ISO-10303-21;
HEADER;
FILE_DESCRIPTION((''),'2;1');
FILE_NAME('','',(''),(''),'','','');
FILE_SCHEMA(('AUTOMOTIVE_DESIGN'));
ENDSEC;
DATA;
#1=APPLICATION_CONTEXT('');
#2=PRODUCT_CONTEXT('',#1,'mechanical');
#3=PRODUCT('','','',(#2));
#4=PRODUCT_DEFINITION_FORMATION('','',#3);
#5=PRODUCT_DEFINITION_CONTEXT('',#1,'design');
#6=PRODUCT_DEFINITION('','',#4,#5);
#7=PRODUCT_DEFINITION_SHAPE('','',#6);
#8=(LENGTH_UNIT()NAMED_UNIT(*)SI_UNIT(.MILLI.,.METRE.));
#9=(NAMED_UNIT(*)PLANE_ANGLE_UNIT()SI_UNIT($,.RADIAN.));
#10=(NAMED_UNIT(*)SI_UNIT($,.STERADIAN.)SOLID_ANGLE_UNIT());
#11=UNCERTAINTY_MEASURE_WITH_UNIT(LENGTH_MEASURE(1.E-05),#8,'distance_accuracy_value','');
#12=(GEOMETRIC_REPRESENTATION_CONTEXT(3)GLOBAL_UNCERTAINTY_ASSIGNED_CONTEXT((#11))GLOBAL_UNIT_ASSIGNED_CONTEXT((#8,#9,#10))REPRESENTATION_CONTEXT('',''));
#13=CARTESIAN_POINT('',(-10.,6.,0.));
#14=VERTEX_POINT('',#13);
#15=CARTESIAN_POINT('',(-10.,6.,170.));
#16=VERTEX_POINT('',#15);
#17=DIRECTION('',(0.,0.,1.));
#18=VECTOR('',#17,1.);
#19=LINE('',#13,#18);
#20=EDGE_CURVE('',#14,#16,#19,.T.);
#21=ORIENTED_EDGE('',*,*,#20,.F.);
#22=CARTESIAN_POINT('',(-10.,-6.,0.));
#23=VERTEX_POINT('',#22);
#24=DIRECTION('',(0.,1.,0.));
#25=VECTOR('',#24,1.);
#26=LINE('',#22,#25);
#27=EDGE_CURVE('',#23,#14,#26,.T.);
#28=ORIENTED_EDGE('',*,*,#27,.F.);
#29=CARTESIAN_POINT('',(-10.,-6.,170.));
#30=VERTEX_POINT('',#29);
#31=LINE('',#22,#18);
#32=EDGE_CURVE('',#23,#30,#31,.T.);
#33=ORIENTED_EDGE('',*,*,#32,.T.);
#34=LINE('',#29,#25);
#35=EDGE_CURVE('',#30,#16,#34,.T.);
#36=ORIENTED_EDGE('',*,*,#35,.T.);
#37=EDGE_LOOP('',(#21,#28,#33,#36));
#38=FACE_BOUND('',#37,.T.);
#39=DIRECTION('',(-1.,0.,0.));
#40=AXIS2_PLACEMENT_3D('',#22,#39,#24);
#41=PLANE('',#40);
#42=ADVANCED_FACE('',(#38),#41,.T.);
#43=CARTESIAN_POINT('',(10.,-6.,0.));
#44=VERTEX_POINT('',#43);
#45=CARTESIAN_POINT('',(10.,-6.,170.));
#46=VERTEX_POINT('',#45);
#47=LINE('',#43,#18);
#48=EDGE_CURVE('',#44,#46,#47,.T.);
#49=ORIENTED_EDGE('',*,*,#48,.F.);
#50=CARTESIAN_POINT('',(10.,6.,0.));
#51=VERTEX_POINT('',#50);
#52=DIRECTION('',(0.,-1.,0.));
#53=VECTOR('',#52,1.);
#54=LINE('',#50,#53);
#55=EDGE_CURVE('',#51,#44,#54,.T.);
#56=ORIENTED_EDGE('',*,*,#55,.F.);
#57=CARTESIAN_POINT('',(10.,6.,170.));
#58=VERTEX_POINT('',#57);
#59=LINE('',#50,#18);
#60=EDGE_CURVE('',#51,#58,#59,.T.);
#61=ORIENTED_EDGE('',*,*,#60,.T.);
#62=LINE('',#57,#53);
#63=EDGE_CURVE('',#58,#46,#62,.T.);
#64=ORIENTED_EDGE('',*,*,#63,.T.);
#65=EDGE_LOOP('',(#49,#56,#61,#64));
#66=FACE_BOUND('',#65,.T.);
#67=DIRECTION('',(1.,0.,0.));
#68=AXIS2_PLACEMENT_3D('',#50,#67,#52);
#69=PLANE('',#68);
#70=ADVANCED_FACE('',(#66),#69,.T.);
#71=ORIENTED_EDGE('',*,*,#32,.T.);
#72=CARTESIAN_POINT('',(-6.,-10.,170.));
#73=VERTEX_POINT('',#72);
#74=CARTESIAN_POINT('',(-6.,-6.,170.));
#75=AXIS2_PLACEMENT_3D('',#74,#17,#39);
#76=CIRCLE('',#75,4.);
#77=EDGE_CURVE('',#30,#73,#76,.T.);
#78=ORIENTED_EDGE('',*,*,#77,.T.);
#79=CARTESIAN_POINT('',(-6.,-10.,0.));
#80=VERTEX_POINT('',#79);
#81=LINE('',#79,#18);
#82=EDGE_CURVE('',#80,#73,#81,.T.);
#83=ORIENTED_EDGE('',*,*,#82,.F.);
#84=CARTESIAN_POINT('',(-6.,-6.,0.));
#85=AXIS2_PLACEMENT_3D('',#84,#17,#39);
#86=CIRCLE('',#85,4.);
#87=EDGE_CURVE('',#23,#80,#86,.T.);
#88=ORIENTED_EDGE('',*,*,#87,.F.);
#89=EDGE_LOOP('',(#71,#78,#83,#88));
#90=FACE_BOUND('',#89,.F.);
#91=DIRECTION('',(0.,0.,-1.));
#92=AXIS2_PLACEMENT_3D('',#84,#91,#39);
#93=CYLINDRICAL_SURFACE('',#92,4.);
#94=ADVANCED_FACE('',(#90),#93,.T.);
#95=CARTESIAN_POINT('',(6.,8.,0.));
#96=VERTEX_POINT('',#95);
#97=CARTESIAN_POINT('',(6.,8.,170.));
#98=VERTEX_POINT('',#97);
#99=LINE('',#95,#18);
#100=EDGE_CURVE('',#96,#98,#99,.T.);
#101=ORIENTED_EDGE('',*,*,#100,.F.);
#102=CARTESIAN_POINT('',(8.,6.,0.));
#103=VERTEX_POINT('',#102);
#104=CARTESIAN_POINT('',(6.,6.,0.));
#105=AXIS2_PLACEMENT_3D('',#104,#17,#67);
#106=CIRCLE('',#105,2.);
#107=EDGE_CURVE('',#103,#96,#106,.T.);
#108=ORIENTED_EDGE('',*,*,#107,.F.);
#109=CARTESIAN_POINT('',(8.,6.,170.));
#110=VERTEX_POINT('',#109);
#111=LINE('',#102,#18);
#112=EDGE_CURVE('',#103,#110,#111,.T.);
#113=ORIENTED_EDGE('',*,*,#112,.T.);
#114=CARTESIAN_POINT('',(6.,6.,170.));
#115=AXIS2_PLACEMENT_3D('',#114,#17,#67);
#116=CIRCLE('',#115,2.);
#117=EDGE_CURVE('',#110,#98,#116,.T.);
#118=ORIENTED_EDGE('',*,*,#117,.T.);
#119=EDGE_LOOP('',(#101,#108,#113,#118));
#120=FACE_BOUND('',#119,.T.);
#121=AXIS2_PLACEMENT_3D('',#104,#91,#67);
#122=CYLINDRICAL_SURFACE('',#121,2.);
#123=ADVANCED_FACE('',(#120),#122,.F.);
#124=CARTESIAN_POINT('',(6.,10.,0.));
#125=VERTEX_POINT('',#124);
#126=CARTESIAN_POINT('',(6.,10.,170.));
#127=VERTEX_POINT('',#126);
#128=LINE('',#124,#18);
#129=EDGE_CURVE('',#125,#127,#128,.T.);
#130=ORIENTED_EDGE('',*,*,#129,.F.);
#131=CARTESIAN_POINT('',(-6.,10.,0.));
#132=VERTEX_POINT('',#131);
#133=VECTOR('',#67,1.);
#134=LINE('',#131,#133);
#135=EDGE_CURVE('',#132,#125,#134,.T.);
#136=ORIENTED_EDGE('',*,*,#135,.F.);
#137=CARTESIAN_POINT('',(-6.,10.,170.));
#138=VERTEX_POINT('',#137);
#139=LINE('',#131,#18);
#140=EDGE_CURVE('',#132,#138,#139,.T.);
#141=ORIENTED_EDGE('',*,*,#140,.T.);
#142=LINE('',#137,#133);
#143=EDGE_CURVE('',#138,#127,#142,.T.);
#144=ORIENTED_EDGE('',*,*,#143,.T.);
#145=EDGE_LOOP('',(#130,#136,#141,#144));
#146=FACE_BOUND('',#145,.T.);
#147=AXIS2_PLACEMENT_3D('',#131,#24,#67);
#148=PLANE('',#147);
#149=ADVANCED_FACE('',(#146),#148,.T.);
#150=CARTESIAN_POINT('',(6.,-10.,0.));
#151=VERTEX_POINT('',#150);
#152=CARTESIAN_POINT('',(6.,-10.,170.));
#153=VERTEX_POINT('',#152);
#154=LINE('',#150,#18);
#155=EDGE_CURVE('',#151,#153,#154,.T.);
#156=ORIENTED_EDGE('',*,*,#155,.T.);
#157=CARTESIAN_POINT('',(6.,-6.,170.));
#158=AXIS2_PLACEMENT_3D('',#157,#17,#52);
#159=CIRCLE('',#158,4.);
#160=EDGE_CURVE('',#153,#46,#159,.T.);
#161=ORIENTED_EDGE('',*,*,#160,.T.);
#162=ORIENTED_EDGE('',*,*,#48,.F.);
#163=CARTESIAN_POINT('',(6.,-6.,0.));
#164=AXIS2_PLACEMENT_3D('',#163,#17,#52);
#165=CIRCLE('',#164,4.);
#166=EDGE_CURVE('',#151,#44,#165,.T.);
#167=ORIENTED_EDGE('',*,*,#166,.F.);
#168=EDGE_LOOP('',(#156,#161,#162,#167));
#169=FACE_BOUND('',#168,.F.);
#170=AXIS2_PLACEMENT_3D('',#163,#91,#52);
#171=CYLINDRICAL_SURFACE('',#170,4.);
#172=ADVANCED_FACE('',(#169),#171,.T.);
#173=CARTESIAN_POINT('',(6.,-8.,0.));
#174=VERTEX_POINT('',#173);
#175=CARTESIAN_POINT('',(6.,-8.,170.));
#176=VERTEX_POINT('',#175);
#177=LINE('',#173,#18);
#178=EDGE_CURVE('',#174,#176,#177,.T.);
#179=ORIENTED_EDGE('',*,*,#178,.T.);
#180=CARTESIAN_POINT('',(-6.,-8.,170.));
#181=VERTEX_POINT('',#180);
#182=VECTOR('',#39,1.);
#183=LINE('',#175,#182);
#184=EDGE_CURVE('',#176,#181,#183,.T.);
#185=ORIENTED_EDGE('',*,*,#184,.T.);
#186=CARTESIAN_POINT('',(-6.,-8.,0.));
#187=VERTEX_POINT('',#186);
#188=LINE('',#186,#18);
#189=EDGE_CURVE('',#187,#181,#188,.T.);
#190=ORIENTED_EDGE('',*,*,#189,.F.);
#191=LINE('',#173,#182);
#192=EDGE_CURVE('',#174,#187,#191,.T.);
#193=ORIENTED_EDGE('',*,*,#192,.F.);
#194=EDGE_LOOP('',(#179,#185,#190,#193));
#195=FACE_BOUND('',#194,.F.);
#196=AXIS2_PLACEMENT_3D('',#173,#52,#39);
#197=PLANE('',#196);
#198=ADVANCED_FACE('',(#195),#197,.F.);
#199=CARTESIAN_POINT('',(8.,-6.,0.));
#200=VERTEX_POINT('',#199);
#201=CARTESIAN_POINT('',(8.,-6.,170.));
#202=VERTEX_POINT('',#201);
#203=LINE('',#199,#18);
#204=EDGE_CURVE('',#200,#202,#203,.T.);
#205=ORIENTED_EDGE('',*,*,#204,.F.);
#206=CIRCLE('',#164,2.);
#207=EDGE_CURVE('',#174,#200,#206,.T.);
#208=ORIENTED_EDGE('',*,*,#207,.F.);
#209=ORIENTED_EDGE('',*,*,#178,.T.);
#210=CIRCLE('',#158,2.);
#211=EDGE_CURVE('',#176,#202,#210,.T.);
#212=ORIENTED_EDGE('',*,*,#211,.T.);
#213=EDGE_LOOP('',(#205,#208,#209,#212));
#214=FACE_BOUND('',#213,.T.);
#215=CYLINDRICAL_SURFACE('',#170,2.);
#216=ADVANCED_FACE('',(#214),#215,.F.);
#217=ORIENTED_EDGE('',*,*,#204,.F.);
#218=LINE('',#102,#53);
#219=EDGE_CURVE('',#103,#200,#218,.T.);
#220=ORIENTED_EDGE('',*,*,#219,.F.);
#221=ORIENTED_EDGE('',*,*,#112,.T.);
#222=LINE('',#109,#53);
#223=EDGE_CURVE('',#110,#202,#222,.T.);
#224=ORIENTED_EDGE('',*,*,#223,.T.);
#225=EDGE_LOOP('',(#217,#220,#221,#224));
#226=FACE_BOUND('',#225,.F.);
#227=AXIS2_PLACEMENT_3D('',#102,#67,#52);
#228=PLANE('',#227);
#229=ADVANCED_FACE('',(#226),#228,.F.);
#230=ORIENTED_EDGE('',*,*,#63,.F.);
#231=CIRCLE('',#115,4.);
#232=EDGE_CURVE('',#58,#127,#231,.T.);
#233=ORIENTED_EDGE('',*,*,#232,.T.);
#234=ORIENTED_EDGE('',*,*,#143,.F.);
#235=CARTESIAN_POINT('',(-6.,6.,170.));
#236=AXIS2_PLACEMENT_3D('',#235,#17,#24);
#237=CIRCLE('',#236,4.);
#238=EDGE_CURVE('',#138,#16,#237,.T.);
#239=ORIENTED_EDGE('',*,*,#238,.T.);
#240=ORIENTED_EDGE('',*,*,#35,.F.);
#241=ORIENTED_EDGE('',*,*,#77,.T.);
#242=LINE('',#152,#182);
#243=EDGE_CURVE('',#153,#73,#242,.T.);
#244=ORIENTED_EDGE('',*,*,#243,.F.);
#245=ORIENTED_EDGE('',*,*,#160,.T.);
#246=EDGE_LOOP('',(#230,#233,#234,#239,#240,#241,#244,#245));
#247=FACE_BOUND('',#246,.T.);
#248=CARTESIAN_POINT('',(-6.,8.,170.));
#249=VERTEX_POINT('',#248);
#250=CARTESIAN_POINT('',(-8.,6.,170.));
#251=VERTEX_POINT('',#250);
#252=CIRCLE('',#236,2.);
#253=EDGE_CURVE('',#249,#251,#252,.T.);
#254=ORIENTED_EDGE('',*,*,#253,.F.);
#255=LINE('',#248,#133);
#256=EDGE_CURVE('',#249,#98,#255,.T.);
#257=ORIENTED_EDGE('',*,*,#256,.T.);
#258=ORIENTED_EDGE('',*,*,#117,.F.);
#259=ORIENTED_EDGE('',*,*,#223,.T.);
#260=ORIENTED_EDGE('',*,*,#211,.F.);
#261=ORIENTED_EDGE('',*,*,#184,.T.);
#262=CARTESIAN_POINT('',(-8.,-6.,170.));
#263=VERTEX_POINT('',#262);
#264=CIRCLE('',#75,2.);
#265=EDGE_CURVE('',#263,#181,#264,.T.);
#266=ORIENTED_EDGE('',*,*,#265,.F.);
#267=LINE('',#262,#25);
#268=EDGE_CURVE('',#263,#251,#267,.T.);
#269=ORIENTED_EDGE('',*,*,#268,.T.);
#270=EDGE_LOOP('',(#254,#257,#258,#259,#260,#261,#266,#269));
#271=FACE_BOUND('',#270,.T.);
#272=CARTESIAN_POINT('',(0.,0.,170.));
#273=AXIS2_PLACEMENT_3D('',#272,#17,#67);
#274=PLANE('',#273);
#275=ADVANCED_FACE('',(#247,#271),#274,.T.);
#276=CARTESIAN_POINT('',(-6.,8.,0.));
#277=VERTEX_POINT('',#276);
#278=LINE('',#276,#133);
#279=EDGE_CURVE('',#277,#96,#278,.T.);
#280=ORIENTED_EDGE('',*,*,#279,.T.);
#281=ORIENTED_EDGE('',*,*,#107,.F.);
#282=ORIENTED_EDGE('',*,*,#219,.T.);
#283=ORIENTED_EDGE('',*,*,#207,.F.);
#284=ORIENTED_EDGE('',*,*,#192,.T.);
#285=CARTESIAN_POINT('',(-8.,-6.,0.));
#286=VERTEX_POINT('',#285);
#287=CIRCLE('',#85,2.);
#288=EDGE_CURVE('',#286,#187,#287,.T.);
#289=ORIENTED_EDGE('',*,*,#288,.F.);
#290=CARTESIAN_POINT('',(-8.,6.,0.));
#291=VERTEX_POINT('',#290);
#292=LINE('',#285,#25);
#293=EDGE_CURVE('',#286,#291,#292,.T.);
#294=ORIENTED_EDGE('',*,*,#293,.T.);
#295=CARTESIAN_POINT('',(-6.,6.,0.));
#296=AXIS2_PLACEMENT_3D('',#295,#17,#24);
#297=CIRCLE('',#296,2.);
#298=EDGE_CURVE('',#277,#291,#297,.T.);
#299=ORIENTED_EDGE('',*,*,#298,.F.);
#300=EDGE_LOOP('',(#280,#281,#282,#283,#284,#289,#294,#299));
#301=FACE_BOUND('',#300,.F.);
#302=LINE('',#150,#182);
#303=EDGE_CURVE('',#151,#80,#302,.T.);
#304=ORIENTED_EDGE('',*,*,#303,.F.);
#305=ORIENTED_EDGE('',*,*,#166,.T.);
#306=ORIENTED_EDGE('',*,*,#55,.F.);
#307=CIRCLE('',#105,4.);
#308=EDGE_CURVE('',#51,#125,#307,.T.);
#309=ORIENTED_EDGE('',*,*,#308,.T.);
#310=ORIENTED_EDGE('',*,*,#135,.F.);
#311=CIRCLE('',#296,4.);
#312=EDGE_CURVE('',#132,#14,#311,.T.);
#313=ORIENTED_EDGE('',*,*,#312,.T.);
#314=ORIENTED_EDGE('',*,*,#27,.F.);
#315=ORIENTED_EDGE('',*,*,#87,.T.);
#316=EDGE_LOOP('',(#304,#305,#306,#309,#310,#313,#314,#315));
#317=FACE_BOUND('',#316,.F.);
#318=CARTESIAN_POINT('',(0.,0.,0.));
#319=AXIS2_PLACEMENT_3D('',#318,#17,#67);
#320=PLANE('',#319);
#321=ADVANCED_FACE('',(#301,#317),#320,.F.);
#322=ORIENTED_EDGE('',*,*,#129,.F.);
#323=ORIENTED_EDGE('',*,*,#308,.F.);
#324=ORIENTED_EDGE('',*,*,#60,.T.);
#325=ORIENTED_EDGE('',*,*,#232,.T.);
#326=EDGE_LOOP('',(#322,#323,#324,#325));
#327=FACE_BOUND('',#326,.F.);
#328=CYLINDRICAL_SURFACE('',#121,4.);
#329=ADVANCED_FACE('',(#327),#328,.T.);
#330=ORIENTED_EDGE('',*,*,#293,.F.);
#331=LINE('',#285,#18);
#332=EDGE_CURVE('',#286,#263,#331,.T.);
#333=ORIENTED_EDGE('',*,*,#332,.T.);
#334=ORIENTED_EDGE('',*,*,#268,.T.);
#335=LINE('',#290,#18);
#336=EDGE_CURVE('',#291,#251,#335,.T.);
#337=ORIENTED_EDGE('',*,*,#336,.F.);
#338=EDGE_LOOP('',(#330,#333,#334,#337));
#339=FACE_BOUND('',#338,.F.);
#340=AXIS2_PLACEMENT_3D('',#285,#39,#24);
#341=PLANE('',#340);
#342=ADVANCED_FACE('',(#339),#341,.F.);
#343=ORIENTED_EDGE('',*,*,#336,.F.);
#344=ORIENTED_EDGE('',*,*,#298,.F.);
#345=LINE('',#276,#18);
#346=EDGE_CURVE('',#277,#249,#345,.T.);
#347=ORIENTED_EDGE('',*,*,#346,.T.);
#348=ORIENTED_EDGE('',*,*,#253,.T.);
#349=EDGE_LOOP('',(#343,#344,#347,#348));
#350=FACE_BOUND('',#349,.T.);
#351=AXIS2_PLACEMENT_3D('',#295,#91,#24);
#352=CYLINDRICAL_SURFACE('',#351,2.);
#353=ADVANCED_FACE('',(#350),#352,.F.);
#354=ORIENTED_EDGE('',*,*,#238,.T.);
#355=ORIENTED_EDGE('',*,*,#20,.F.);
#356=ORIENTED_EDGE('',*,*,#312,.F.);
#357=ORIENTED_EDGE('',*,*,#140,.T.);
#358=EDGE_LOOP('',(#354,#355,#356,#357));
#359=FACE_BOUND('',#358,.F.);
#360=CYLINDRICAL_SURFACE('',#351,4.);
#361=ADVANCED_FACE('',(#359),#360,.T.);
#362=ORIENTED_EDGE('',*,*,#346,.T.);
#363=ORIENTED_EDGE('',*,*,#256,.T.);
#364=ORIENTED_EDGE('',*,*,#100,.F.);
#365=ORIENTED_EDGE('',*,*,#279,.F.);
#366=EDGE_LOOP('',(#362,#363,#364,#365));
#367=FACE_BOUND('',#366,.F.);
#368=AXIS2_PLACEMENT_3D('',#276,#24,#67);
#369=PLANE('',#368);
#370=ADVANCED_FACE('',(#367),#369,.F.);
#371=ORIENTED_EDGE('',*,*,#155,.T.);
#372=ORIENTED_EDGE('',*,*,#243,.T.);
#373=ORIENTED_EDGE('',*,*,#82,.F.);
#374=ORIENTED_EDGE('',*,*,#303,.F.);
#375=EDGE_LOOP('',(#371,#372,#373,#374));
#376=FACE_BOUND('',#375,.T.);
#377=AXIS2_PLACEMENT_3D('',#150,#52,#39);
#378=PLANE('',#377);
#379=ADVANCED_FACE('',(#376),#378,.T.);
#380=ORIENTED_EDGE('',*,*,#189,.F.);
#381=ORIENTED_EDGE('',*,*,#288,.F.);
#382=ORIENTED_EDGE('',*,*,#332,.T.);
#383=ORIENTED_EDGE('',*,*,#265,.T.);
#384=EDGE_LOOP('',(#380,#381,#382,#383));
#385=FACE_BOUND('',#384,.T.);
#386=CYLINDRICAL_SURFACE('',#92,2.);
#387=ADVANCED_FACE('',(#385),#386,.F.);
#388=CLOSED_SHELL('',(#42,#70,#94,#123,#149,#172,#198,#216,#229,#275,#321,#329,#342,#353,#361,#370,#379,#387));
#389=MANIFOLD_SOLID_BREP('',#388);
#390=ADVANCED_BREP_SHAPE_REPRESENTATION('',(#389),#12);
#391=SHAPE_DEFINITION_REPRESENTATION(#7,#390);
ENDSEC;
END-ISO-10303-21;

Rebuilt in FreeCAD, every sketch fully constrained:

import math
import FreeCAD as App
import Part
import Sketcher
Q = App.Units.Quantity

doc = App.newDocument("Part")
body = doc.addObject("PartDesign::Body", "Body")

sketch1 = body.newObject("Sketcher::SketchObject", "Sketch")
sketch1.AttachmentSupport = (doc.getObject("XY_Plane"), [""])
sketch1.MapMode = "FlatFace"
sketch1.addGeometry(Part.LineSegment(App.Vector(-10, 6, 0), App.Vector(-10, -6, 0)), False)
sketch1.addGeometry(Part.ArcOfCircle(Part.Circle(App.Vector(-6, -6, 0), App.Vector(0, 0, 1), 4), math.radians(180), math.radians(270)), False)
sketch1.addGeometry(Part.LineSegment(App.Vector(-6, -10, 0), App.Vector(6, -10, 0)), False)
sketch1.addGeometry(Part.ArcOfCircle(Part.Circle(App.Vector(6, -6, 0), App.Vector(0, 0, 1), 4), math.radians(-90), math.radians(0)), False)
sketch1.addGeometry(Part.LineSegment(App.Vector(10, -6, 0), App.Vector(10, 6, 0)), False)
sketch1.addGeometry(Part.ArcOfCircle(Part.Circle(App.Vector(6, 6, 0), App.Vector(0, 0, 1), 4), math.radians(0), math.radians(90)), False)
sketch1.addGeometry(Part.LineSegment(App.Vector(6, 10, 0), App.Vector(-6, 10, 0)), False)
sketch1.addGeometry(Part.ArcOfCircle(Part.Circle(App.Vector(-6, 6, 0), App.Vector(0, 0, 1), 4), math.radians(90), math.radians(180)), False)
sketch1.addGeometry(Part.ArcOfCircle(Part.Circle(App.Vector(-6, 6, 0), App.Vector(0, 0, 1), 2), math.radians(90), math.radians(180)), False)
sketch1.addGeometry(Part.LineSegment(App.Vector(-6, 8, 0), App.Vector(6, 8, 0)), False)
sketch1.addGeometry(Part.ArcOfCircle(Part.Circle(App.Vector(6, 6, 0), App.Vector(0, 0, 1), 2), math.radians(0), math.radians(90)), False)
sketch1.addGeometry(Part.LineSegment(App.Vector(8, 6, 0), App.Vector(8, -6, 0)), False)
sketch1.addGeometry(Part.ArcOfCircle(Part.Circle(App.Vector(6, -6, 0), App.Vector(0, 0, 1), 2), math.radians(-90), math.radians(0)), False)
sketch1.addGeometry(Part.LineSegment(App.Vector(6, -8, 0), App.Vector(-6, -8, 0)), False)
sketch1.addGeometry(Part.ArcOfCircle(Part.Circle(App.Vector(-6, -6, 0), App.Vector(0, 0, 1), 2), math.radians(180), math.radians(270)), False)
sketch1.addGeometry(Part.LineSegment(App.Vector(-8, -6, 0), App.Vector(-8, 6, 0)), False)
sketch1.addConstraint(Sketcher.Constraint("Tangent", 0, 2, 1, 1))
sketch1.addConstraint(Sketcher.Constraint("Tangent", 1, 2, 2, 1))
sketch1.addConstraint(Sketcher.Constraint("Tangent", 2, 2, 3, 1))
sketch1.addConstraint(Sketcher.Constraint("Tangent", 3, 2, 4, 1))
sketch1.addConstraint(Sketcher.Constraint("Tangent", 4, 2, 5, 1))
sketch1.addConstraint(Sketcher.Constraint("Tangent", 5, 2, 6, 1))
sketch1.addConstraint(Sketcher.Constraint("Tangent", 6, 2, 7, 1))
sketch1.addConstraint(Sketcher.Constraint("Tangent", 7, 2, 0, 1))
sketch1.addConstraint(Sketcher.Constraint("Tangent", 8, 1, 9, 1))
sketch1.addConstraint(Sketcher.Constraint("Tangent", 9, 2, 10, 2))
sketch1.addConstraint(Sketcher.Constraint("Tangent", 10, 1, 11, 1))
sketch1.addConstraint(Sketcher.Constraint("Tangent", 11, 2, 12, 2))
sketch1.addConstraint(Sketcher.Constraint("Tangent", 12, 1, 13, 1))
sketch1.addConstraint(Sketcher.Constraint("Tangent", 13, 2, 14, 2))
sketch1.addConstraint(Sketcher.Constraint("Tangent", 14, 1, 15, 1))
sketch1.addConstraint(Sketcher.Constraint("Tangent", 15, 2, 8, 2))
sketch1.addConstraint(Sketcher.Constraint("Vertical", 0))
sketch1.addConstraint(Sketcher.Constraint("Horizontal", 2))
sketch1.addConstraint(Sketcher.Constraint("Vertical", 4))
sketch1.addConstraint(Sketcher.Constraint("Horizontal", 6))
sketch1.addConstraint(Sketcher.Constraint("Horizontal", 9))
sketch1.addConstraint(Sketcher.Constraint("Vertical", 11))
sketch1.addConstraint(Sketcher.Constraint("Horizontal", 13))
sketch1.addConstraint(Sketcher.Constraint("Vertical", 15))
sketch1.addConstraint(Sketcher.Constraint("Coincident", 8, 3, 7, 3))
sketch1.addConstraint(Sketcher.Constraint("Coincident", 10, 3, 5, 3))
sketch1.addConstraint(Sketcher.Constraint("Coincident", 12, 3, 3, 3))
sketch1.addConstraint(Sketcher.Constraint("Equal", 1, 3))
sketch1.addConstraint(Sketcher.Constraint("Equal", 3, 5))
sketch1.addConstraint(Sketcher.Constraint("Equal", 5, 7))
sketch1.addConstraint(Sketcher.Constraint("Equal", 12, 14))
sketch1.addConstraint(Sketcher.Constraint("Symmetric", 1, 3, 5, 3, -1, 1))
sketch1.addConstraint(Sketcher.Constraint("Equal", 13, 0))
sketch1.addConstraint(Sketcher.Constraint("Radius", 1, Q("4 mm")))
sketch1.addConstraint(Sketcher.Constraint("Radius", 8, Q("2 mm")))
sketch1.addConstraint(Sketcher.Constraint("DistanceX", 0, 2, -1, 1, Q("10 mm")))
pad1 = body.newObject("PartDesign::Pad", "Pad")
pad1.Profile = sketch1
pad1.Length = 170

doc.recompute()
